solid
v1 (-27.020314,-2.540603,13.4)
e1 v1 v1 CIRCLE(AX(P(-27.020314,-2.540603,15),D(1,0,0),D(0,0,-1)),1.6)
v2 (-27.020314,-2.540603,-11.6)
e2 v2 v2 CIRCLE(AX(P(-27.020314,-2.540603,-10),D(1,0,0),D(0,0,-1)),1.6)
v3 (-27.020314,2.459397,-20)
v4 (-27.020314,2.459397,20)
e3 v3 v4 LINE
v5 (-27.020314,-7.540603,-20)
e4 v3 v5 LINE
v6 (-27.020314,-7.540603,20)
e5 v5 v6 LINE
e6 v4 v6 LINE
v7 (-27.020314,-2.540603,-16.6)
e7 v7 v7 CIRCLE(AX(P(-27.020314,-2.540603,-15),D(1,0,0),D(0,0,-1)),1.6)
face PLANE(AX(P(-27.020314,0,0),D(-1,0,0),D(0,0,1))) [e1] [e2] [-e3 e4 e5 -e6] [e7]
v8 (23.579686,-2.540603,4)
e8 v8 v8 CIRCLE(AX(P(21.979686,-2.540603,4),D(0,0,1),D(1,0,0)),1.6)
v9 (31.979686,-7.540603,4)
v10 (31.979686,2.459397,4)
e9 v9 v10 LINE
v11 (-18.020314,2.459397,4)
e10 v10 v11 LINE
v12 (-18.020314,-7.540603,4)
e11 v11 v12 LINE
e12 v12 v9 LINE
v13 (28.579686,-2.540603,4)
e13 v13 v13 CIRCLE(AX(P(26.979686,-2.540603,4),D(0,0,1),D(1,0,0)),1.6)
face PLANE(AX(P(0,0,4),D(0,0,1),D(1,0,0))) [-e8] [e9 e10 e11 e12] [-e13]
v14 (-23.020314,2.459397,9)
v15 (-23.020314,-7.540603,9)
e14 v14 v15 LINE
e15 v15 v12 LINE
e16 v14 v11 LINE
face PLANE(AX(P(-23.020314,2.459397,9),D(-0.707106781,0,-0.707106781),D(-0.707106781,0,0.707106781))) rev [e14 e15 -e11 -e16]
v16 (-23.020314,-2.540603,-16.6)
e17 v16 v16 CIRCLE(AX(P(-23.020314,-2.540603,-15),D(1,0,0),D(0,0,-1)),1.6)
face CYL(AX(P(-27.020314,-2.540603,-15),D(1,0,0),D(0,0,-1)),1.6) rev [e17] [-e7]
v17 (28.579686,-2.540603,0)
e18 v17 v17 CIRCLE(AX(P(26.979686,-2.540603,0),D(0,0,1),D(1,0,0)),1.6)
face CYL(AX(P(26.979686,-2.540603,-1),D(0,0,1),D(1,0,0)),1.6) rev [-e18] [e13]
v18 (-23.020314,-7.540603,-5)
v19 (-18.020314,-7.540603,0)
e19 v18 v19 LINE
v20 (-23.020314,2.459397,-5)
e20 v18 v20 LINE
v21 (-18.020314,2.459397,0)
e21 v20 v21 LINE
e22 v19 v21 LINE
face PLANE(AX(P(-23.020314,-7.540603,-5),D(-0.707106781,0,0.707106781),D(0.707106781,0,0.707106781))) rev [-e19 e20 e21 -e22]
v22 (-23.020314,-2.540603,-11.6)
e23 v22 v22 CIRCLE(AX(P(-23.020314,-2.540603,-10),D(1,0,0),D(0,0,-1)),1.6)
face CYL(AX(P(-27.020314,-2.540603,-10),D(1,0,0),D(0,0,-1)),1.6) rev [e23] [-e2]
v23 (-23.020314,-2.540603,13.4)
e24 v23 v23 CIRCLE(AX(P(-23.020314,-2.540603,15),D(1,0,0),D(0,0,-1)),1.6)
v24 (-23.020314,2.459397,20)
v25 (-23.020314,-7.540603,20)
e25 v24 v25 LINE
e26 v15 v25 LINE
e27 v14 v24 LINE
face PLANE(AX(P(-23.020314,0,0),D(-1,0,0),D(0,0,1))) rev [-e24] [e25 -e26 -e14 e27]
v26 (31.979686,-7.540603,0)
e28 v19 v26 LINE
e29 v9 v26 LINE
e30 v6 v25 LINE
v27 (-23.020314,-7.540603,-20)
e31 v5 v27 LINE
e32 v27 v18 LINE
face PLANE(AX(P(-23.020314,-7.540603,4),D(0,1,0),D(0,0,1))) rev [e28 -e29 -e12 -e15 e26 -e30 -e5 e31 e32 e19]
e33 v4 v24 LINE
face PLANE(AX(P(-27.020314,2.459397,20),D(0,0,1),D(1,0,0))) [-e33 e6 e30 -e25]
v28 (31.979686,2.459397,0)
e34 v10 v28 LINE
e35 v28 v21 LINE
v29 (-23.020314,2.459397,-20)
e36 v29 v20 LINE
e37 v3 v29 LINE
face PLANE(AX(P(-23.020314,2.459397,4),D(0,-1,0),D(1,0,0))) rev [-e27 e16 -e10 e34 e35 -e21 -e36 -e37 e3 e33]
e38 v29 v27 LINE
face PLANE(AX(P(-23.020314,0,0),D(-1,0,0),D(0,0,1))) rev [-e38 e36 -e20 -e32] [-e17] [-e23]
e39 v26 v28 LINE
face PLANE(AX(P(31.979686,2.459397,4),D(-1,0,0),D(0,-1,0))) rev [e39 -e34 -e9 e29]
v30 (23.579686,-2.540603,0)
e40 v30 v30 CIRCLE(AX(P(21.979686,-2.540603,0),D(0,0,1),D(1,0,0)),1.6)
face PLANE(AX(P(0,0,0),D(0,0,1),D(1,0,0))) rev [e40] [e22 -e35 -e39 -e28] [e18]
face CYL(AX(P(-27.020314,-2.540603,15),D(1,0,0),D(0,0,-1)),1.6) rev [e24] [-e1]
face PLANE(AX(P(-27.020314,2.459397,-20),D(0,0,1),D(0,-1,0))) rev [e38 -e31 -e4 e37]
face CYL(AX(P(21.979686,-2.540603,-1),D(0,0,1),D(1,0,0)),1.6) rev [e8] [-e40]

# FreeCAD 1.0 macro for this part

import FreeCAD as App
import Part
import Sketcher
from FreeCAD import Vector


def add_polygon(sketch, points):
    """Adds a closed chain of lines whose ends are joined by coincident constraints."""
    first, n = sketch.GeometryCount, len(points)
    for a, b in zip(points, points[1:] + points[:1]):
        sketch.addGeometry(Part.LineSegment(App.Vector(*a, 0), App.Vector(*b, 0)), False)
    for i in range(n):
        sketch.addConstraint(Sketcher.Constraint("Coincident", first + i, 2, first + (i + 1) % n, 1))

doc = App.newDocument("Part")
body = doc.addObject("PartDesign::Body", "Body")

# Sketch on XY plane
sketch1 = doc.addObject("Sketcher::SketchObject", "Sketch")
body.addObject(sketch1)
sketch1.AttachmentSupport = (doc.XY_Plane, [""])
sketch1.MapMode = "FlatFace"
add_polygon(sketch1, [(-23.020314, 2.459397), (-23.020314, -7.540603), (31.979686, -7.540603), (31.979686, 2.459397)])  # lines 0-3
sketch1.addConstraint(Sketcher.Constraint("Vertical", 0))
sketch1.addConstraint(Sketcher.Constraint("Horizontal", 1))
sketch1.addConstraint(Sketcher.Constraint("Vertical", 2))
sketch1.addConstraint(Sketcher.Constraint("Horizontal", 3))
sketch1.addConstraint(Sketcher.Constraint("DistanceX", 1, 1, 1, 2, 55.0))
sketch1.addConstraint(Sketcher.Constraint("DistanceY", 0, 2, 0, 1, 10.0))
sketch1.addConstraint(Sketcher.Constraint("DistanceX", 0, 2, -1, 1, 23.020314))
sketch1.addConstraint(Sketcher.Constraint("DistanceY", 0, 2, -1, 1, 7.540603))
pad1 = doc.addObject("PartDesign::Pad", "Pad")
body.addObject(pad1)
pad1.Profile = sketch1
pad1.Length = 4

# Sketch on YZ plane
sketch2 = doc.addObject("Sketcher::SketchObject", "Sketch001")
body.addObject(sketch2)
sketch2.AttachmentSupport = (doc.YZ_Plane, [""])
sketch2.MapMode = "FlatFace"
sketch2.AttachmentOffset = App.Placement(Vector(0, 0, -23.020314), App.Rotation())
add_polygon(sketch2, [(2.459397, -20), (-7.540603, -20), (-7.540603, 20), (2.459397, 20)])  # lines 0-3
sketch2.addConstraint(Sketcher.Constraint("Horizontal", 0))
sketch2.addConstraint(Sketcher.Constraint("Vertical", 1))
sketch2.addConstraint(Sketcher.Constraint("Horizontal", 2))
sketch2.addConstraint(Sketcher.Constraint("Vertical", 3))
sketch2.addConstraint(Sketcher.Constraint("DistanceX", 0, 2, 0, 1, 10.0))
sketch2.addConstraint(Sketcher.Constraint("DistanceY", 1, 1, 1, 2, 40.0))
sketch2.addConstraint(Sketcher.Constraint("DistanceY", 0, 2, -1, 1, 20.0))
sketch2.addConstraint(Sketcher.Constraint("DistanceX", 0, 2, -1, 1, 7.540603))
pad2 = doc.addObject("PartDesign::Pad", "Pad001")
body.addObject(pad2)
pad2.Profile = sketch2
pad2.Length = 4
pad2.Reversed = True

# Sketch on XZ plane
sketch3 = doc.addObject("Sketcher::SketchObject", "Sketch002")
body.addObject(sketch3)
sketch3.AttachmentSupport = (doc.XZ_Plane, [""])
sketch3.MapMode = "FlatFace"
sketch3.AttachmentOffset = App.Placement(Vector(0, 0, -2.459397), App.Rotation())
add_polygon(sketch3, [(-18.020314, 0), (-23.020314, -5), (-23.020314, 0)])  # lines 0-2
sketch3.addConstraint(Sketcher.Constraint("Vertical", 1))
sketch3.addConstraint(Sketcher.Constraint("Horizontal", 2))
sketch3.addConstraint(Sketcher.Constraint("PointOnObject", 1, 2, -1))
sketch3.addConstraint(Sketcher.Constraint("Equal", 2, 1))
sketch3.addConstraint(Sketcher.Constraint("DistanceX", 2, 1, 2, 2, 5.0))
sketch3.addConstraint(Sketcher.Constraint("DistanceX", 0, 2, -1, 1, 23.020314))
pad3 = doc.addObject("PartDesign::Pad", "Pad002")
body.addObject(pad3)
pad3.Profile = sketch3
pad3.Length = 10

# Sketch on XZ plane
sketch4 = doc.addObject("Sketcher::SketchObject", "Sketch003")
body.addObject(sketch4)
sketch4.AttachmentSupport = (doc.XZ_Plane, [""])
sketch4.MapMode = "FlatFace"
sketch4.AttachmentOffset = App.Placement(Vector(0, 0, 7.540603), App.Rotation())
add_polygon(sketch4, [(-18.020314, 4), (-23.020314, 9), (-23.020314, 20), (-27.020314, 20), (-27.020314, -20), (-23.020314, -20), (-23.020314, -5), (-18.020314, 0), (31.979686, 0), (31.979686, 4)])  # lines 0-9
sketch4.addConstraint(Sketcher.Constraint("Vertical", 1))
sketch4.addConstraint(Sketcher.Constraint("Horizontal", 2))
sketch4.addConstraint(Sketcher.Constraint("Vertical", 3))
sketch4.addConstraint(Sketcher.Constraint("Horizontal", 4))
sketch4.addConstraint(Sketcher.Constraint("Vertical", 5))
sketch4.addConstraint(Sketcher.Constraint("Horizontal", 7))
sketch4.addConstraint(Sketcher.Constraint("Vertical", 8))
sketch4.addConstraint(Sketcher.Constraint("Horizontal", 9))
sketch4.addConstraint(Sketcher.Constraint("Symmetric", 1, 2, 4, 2, -1))
sketch4.addConstraint(Sketcher.Constraint("PointOnObject", 6, 2, -1))
sketch4.addConstraint(Sketcher.Constraint("Perpendicular", 0, 6))
sketch4.addConstraint(Sketcher.Constraint("Vertical", 6, 2, 9, 2))
sketch4.addConstraint(Sketcher.Constraint("Equal", 4, 8))
sketch4.addConstraint(Sketcher.Constraint("Equal", 0, 6))
sketch4.addConstraint(Sketcher.Constraint("DistanceX", 2, 2, 2, 1, 4.0))
sketch4.addConstraint(Sketcher.Constraint("DistanceX", 7, 1, 7, 2, 50.0))
sketch4.addConstraint(Sketcher.Constraint("DistanceY", 1, 1, 1, 2, 11.0))
sketch4.addConstraint(Sketcher.Constraint("DistanceY", 3, 2, 3, 1, 40.0))
sketch4.addConstraint(Sketcher.Constraint("DistanceX", 0, 2, -1, 1, 23.020314))
pad4 = doc.addObject("PartDesign::Pad", "Pad003")
body.addObject(pad4)
pad4.Profile = sketch4
pad4.Length = 10
pad4.Reversed = True

# Sketch on XY plane
sketch5 = doc.addObject("Sketcher::SketchObject", "Sketch004")
body.addObject(sketch5)
sketch5.AttachmentSupport = (doc.XY_Plane, [""])
sketch5.MapMode = "FlatFace"
sketch5.AttachmentOffset = App.Placement(Vector(0, 0, 4), App.Rotation())
sketch5.addGeometry(Part.Circle(Vector(26.979686, -2.540603, 0), Vector(0, 0, 1), 1.6), False)
sketch5.addGeometry(Part.Circle(Vector(21.979686, -2.540603, 0), Vector(0, 0, 1), 1.6), False)
sketch5.addConstraint(Sketcher.Constraint("Equal", 0, 1))
sketch5.addConstraint(Sketcher.Constraint("Horizontal", 0, 3, 1, 3))
sketch5.addConstraint(Sketcher.Constraint("Diameter", 0, 3.2))
sketch5.addConstraint(Sketcher.Constraint("DistanceX", 1, 3, 0, 3, 5.0))
sketch5.addConstraint(Sketcher.Constraint("DistanceX", -1, 1, 0, 3, 26.979686))
sketch5.addConstraint(Sketcher.Constraint("DistanceY", 0, 3, -1, 1, 2.540603))
pocket1 = doc.addObject("PartDesign::Pocket", "Pocket")
body.addObject(pocket1)
pocket1.Profile = sketch5
pocket1.Length = 5

# Sketch on YZ plane
sketch6 = doc.addObject("Sketcher::SketchObject", "Sketch005")
body.addObject(sketch6)
sketch6.AttachmentSupport = (doc.YZ_Plane, [""])
sketch6.MapMode = "FlatFace"
sketch6.AttachmentOffset = App.Placement(Vector(0, 0, -23.020314), App.Rotation())
sketch6.addGeometry(Part.Circle(Vector(-2.540603, 15, 0), Vector(0, 0, 1), 1.6), False)
sketch6.addGeometry(Part.Circle(Vector(-2.540603, -10, 0), Vector(0, 0, 1), 1.6), False)
sketch6.addGeometry(Part.Circle(Vector(-2.540603, -15, 0), Vector(0, 0, 1), 1.6), False)
sketch6.addConstraint(Sketcher.Constraint("Equal", 0, 1))
sketch6.addConstraint(Sketcher.Constraint("Equal", 1, 2))
sketch6.addConstraint(Sketcher.Constraint("Symmetric", 0, 3, 2, 3, -1))
sketch6.addConstraint(Sketcher.Constraint("Vertical", 0, 3, 1, 3))
sketch6.addConstraint(Sketcher.Constraint("Diameter", 0, 3.2))
sketch6.addConstraint(Sketcher.Constraint("DistanceY", -1, 1, 0, 3, 15.0))
sketch6.addConstraint(Sketcher.Constraint("DistanceY", 1, 3, -1, 1, 10.0))
sketch6.addConstraint(Sketcher.Constraint("DistanceX", 0, 3, -1, 1, 2.540603))
pocket2 = doc.addObject("PartDesign::Pocket", "Pocket001")
body.addObject(pocket2)
pocket2.Profile = sketch6
pocket2.Length = 4

doc.recompute()
